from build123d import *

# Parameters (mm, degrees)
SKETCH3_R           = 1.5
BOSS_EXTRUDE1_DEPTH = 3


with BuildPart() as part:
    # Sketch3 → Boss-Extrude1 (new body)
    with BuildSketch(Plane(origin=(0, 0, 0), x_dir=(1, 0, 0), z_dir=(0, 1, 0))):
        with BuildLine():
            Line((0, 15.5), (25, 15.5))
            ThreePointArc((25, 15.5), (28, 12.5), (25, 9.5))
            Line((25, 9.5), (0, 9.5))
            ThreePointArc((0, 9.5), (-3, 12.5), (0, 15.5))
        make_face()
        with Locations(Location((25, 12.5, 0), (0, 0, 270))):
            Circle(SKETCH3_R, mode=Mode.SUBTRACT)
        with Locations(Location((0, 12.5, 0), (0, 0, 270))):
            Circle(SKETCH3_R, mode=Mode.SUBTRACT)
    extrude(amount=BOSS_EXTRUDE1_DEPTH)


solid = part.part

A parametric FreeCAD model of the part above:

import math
import FreeCAD as App
import Part
import Sketcher

V = App.Vector

doc = App.newDocument("Part")
params = doc.addObject("Spreadsheet::Sheet", "Params")
for row, (alias, value) in enumerate([
    ("sketch1_diameter", "3 mm"),
    ("sketch1_radius", "3 mm"),
    ("sketch1_width", "25 mm"),
    ("pad1_length", "3 mm"),
], start=1):
    params.set(f"A{row}", alias)
    params.set(f"B{row}", "=" + value)
    params.setAlias(f"B{row}", alias)

body = doc.addObject("PartDesign::Body", "Body")

# Sketch on XZ plane
sketch1 = body.newObject("Sketcher::SketchObject", "Sketch")
sketch1.AttachmentSupport = (doc.getObject("XZ_Plane"), [""])
sketch1.MapMode = "FlatFace"
sketch1.addGeometry([
    Part.LineSegment(V(25, -15.5, 0), V(0, -15.5, 0)),  # 0
    Part.ArcOfCircle(Part.Circle(V(0, -12.5, 0), V(0, 0, 1), 3), math.radians(90), math.radians(270)),  # 1
    Part.LineSegment(V(0, -9.5, 0), V(25, -9.5, 0)),  # 2
    Part.ArcOfCircle(Part.Circle(V(25, -12.5, 0), V(0, 0, 1), 3), math.radians(-90), math.radians(90)),  # 3
    Part.Circle(V(25, -12.5, 0), V(0, 0, 1), 1.5),  # 4
    Part.Circle(V(0, -12.5, 0), V(0, 0, 1), 1.5),  # 5
], False)
sketch1.addConstraint([
    Sketcher.Constraint("Tangent", 0, 2, 1, 2),
    Sketcher.Constraint("Tangent", 1, 1, 2, 1),
    Sketcher.Constraint("Tangent", 2, 2, 3, 2),
    Sketcher.Constraint("Tangent", 3, 1, 0, 1),
    Sketcher.Constraint("Horizontal", 0),
    Sketcher.Constraint("Horizontal", 2),
    Sketcher.Constraint("Coincident", 4, 3, 3, 3),
    Sketcher.Constraint("Coincident", 5, 3, 1, 3),
    Sketcher.Constraint("Equal", 4, 5),
    Sketcher.Constraint("PointOnObject", 1, 3, -2),
    Sketcher.Constraint("Diameter", 4, 3.0),
    Sketcher.Constraint("Radius", 1, 3.0),
    Sketcher.Constraint("DistanceX", 0, 2, 0, 1, 25.0),
    Sketcher.Constraint("DistanceY", 1, 3, -1, 1, 12.5),
])
sketch1.setExpression("Constraints[10]", "Params.sketch1_diameter")
sketch1.setExpression("Constraints[11]", "Params.sketch1_radius")
sketch1.setExpression("Constraints[12]", "Params.sketch1_width")
pad1 = body.newObject("PartDesign::Pad", "Pad")
pad1.Profile = sketch1
pad1.setExpression("Length", "Params.pad1_length")
pad1.Reversed = True

doc.recompute()
